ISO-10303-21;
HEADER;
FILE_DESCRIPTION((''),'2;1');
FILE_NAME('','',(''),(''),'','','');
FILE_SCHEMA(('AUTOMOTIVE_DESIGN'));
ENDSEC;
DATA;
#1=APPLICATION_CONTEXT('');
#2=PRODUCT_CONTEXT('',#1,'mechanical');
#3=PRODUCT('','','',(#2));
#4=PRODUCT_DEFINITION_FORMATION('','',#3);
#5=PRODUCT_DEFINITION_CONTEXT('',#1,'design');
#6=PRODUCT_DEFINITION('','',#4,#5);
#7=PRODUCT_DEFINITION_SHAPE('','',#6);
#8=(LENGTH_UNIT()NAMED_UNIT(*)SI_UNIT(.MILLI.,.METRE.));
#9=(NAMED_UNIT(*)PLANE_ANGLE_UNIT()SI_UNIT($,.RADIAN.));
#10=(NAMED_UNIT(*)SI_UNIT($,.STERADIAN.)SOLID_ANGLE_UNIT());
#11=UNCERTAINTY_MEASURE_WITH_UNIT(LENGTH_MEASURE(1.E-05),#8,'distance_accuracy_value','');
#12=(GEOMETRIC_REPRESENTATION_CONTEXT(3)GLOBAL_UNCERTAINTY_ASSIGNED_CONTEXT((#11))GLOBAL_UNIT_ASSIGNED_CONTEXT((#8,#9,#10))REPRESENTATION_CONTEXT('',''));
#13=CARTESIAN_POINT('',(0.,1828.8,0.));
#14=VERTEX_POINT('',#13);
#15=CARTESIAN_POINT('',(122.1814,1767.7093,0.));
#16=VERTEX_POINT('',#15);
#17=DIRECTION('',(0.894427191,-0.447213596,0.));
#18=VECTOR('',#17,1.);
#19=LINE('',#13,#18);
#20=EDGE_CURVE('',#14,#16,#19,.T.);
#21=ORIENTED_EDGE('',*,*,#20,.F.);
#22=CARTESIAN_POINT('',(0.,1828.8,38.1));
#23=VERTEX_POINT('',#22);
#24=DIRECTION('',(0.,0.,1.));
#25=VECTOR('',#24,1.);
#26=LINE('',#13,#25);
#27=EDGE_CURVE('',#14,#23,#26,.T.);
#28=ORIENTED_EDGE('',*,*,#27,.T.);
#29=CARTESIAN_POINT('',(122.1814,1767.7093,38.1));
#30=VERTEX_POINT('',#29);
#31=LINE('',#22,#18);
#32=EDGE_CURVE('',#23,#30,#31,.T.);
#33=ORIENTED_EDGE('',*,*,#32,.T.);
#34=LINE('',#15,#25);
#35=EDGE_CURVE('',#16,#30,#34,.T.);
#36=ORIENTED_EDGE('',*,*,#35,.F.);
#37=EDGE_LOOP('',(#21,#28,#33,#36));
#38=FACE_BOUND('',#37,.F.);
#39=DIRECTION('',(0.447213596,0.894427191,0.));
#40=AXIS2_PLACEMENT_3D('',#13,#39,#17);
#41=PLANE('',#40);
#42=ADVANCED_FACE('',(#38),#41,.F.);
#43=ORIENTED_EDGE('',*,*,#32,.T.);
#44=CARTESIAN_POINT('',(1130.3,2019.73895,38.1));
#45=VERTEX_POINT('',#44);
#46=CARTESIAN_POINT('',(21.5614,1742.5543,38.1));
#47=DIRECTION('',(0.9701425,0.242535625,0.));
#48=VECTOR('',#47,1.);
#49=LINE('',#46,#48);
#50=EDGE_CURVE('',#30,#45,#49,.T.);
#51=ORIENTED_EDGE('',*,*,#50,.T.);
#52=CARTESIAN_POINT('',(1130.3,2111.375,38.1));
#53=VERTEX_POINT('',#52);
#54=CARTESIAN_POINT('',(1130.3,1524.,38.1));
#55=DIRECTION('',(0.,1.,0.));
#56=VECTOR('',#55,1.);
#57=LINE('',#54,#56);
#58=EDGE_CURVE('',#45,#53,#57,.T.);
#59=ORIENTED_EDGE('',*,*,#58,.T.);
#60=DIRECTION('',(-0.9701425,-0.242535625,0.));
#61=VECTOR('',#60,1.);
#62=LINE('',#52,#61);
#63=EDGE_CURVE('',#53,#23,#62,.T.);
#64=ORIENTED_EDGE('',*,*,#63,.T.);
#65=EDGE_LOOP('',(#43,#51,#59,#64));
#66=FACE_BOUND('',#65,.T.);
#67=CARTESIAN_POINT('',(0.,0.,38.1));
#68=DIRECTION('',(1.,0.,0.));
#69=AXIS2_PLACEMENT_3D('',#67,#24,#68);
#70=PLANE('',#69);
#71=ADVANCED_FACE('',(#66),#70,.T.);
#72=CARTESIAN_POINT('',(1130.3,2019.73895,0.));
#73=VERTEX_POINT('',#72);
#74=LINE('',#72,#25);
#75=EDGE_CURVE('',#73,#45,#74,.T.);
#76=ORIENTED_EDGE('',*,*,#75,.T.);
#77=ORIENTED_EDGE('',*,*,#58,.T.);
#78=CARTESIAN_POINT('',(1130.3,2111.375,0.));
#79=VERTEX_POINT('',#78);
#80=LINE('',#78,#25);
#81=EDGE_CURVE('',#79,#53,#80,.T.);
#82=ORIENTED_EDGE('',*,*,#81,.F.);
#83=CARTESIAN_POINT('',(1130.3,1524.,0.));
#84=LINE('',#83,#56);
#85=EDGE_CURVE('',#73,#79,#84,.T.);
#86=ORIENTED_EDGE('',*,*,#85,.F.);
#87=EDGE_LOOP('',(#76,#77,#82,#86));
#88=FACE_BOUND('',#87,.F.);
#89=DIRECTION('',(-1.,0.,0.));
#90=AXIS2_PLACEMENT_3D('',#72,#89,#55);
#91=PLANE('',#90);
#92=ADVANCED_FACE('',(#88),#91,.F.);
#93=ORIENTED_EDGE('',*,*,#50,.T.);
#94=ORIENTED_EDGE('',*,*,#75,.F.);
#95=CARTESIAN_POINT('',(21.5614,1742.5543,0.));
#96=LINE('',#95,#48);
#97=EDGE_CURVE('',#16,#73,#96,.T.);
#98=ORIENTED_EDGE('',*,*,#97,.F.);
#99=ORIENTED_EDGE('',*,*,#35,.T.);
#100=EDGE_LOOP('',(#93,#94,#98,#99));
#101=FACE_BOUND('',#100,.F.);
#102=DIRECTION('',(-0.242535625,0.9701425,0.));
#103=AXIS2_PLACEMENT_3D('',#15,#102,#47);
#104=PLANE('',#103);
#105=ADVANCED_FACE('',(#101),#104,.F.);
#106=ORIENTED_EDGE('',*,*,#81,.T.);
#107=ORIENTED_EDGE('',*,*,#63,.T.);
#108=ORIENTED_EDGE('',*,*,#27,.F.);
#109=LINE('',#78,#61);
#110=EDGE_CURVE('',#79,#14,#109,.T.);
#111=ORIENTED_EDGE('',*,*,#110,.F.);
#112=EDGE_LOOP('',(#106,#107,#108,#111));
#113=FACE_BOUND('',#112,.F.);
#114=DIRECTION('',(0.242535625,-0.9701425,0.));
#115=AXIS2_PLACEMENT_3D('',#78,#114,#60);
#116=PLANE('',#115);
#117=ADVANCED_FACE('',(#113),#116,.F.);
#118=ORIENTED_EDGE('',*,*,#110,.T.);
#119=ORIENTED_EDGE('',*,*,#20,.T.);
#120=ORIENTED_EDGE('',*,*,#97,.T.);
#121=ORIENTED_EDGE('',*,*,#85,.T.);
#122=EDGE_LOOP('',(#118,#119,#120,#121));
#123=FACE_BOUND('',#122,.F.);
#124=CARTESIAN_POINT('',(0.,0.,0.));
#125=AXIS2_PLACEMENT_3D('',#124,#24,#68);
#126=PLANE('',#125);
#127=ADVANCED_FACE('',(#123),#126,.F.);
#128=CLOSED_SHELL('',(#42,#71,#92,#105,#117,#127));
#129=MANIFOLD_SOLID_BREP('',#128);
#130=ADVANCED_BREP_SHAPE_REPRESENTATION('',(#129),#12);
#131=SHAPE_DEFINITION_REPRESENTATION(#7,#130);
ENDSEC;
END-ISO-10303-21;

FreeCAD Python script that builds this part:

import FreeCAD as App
import Part
import Sketcher
Q = App.Units.Quantity


def add_polygon(sketch, points):
    """Adds a closed chain of lines whose ends are joined by coincident constraints."""
    first, n = sketch.GeometryCount, len(points)
    for a, b in zip(points, points[1:] + points[:1]):
        sketch.addGeometry(Part.LineSegment(App.Vector(*a, 0), App.Vector(*b, 0)), False)
    for i in range(n):
        sketch.addConstraint(Sketcher.Constraint("Coincident", first + i, 2, first + (i + 1) % n, 1))

doc = App.newDocument("Part")
params = doc.addObject("Spreadsheet::Sheet", "Params")
for row, (alias, value) in enumerate([
    ("pad1_length", "1.5 in"),
], start=1):
    params.set(f"A{row}", alias)
    params.set(f"B{row}", "=" + value)
    params.setAlias(f"B{row}", alias)

body = doc.addObject("PartDesign::Body", "Body")

sketch1 = body.newObject("Sketcher::SketchObject", "Sketch")
sketch1.AttachmentSupport = (doc.getObject("XY_Plane"), [""])
sketch1.MapMode = "FlatFace"
add_polygon(sketch1, [(1130, 2111), (0, 1829), (122, 1768), (1130, 2020)])
sketch1.addConstraint([
    Sketcher.Constraint("Vertical", 3),
    Sketcher.Constraint("PointOnObject", 0, 2, -2),
    Sketcher.Constraint("Parallel", 0, 2),
    Sketcher.Constraint("DistanceY", -1, 1, 0, 2, Q("72 in")),
    Sketcher.Constraint("DistanceX", -1, 1, 2, 2, Q("44.5 in")),
    Sketcher.Constraint("DistanceY", -1, 1, 3, 2, Q("83.125 in")),
    Sketcher.Constraint("DistanceY", 3, 1, 3, 2, Q("91.636 mm")),
    Sketcher.Constraint("DistanceX", -1, 1, 1, 2, Q("4.8103 in")),
])
pad1 = body.newObject("PartDesign::Pad", "Pad")
pad1.Profile = sketch1
pad1.setExpression("Length", "Params.pad1_length")

doc.recompute()
